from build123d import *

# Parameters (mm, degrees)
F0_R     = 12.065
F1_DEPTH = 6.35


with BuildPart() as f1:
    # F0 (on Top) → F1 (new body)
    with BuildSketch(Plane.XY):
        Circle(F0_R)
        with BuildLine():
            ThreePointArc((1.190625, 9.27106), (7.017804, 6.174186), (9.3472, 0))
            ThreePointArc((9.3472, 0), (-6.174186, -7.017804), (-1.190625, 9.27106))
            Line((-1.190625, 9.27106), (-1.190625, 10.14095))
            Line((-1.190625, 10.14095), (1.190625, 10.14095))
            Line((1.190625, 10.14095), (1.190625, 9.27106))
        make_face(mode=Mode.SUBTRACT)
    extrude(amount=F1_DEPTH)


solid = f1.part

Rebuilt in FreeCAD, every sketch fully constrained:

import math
import FreeCAD as App
import Part
import Sketcher
from FreeCAD import Vector
Q = App.Units.Quantity

doc = App.newDocument("Part")
body = doc.addObject("PartDesign::Body", "Body")

# Sketch on XY plane
sketch1 = body.newObject("Sketcher::SketchObject", "Sketch")
sketch1.AttachmentSupport = (doc.getObject("XY_Plane"), [""])
sketch1.MapMode = "FlatFace"
sketch1.addGeometry([
    Part.Circle(Vector(0, 0, 0), Vector(0, 0, 1), 12.065),  # 0
    Part.LineSegment(Vector(1.190625, 10.14095, 0), Vector(1.190625, 9.27106, 0)),  # 1
    Part.ArcOfCircle(Part.Circle(Vector(0, 0, 0), Vector(0, 0, 1), 9.3472), math.radians(0), math.radians(82.681915)),  # 2
    Part.ArcOfCircle(Part.Circle(Vector(0, 0, 0), Vector(0, 0, 1), 9.3472), math.radians(97.318088), math.radians(360.000001)),  # 3
    Part.LineSegment(Vector(-1.190625, 9.27106, 0), Vector(-1.190625, 10.14095, 0)),  # 4
    Part.LineSegment(Vector(-1.190625, 10.14095, 0), Vector(1.190625, 10.14095, 0)),  # 5
], False)
sketch1.addConstraint([
    Sketcher.Constraint("Coincident", 1, 2, 2, 2),
    Sketcher.Constraint("Tangent", 2, 1, 3, 2),
    Sketcher.Constraint("Coincident", 3, 1, 4, 1),
    Sketcher.Constraint("Coincident", 4, 2, 5, 1),
    Sketcher.Constraint("Coincident", 5, 2, 1, 1),
    Sketcher.Constraint("Vertical", 1),
    Sketcher.Constraint("Vertical", 4),
    Sketcher.Constraint("Horizontal", 5),
    Sketcher.Constraint("Coincident", 0, 3, -1, 1),
    Sketcher.Constraint("Coincident", 2, 3, -1, 1),
    Sketcher.Constraint("Equal", 2, 3),
    Sketcher.Constraint("PointOnObject", 2, 1, -1),
    Sketcher.Constraint("Horizontal", 1, 2, 3, 1),
    Sketcher.Constraint("Diameter", 0, Q("0.95 in")),
    Sketcher.Constraint("Radius", 2, Q("0.368 in")),
    Sketcher.Constraint("DistanceX", 5, 1, 5, 2, Q("0.09375 in")),
    Sketcher.Constraint("DistanceY", 1, 2, 1, 1, 0.86989),
])
pad1 = body.newObject("PartDesign::Pad", "Pad")
pad1.Profile = sketch1
pad1.Length = Q("0.25 in")

doc.recompute()
